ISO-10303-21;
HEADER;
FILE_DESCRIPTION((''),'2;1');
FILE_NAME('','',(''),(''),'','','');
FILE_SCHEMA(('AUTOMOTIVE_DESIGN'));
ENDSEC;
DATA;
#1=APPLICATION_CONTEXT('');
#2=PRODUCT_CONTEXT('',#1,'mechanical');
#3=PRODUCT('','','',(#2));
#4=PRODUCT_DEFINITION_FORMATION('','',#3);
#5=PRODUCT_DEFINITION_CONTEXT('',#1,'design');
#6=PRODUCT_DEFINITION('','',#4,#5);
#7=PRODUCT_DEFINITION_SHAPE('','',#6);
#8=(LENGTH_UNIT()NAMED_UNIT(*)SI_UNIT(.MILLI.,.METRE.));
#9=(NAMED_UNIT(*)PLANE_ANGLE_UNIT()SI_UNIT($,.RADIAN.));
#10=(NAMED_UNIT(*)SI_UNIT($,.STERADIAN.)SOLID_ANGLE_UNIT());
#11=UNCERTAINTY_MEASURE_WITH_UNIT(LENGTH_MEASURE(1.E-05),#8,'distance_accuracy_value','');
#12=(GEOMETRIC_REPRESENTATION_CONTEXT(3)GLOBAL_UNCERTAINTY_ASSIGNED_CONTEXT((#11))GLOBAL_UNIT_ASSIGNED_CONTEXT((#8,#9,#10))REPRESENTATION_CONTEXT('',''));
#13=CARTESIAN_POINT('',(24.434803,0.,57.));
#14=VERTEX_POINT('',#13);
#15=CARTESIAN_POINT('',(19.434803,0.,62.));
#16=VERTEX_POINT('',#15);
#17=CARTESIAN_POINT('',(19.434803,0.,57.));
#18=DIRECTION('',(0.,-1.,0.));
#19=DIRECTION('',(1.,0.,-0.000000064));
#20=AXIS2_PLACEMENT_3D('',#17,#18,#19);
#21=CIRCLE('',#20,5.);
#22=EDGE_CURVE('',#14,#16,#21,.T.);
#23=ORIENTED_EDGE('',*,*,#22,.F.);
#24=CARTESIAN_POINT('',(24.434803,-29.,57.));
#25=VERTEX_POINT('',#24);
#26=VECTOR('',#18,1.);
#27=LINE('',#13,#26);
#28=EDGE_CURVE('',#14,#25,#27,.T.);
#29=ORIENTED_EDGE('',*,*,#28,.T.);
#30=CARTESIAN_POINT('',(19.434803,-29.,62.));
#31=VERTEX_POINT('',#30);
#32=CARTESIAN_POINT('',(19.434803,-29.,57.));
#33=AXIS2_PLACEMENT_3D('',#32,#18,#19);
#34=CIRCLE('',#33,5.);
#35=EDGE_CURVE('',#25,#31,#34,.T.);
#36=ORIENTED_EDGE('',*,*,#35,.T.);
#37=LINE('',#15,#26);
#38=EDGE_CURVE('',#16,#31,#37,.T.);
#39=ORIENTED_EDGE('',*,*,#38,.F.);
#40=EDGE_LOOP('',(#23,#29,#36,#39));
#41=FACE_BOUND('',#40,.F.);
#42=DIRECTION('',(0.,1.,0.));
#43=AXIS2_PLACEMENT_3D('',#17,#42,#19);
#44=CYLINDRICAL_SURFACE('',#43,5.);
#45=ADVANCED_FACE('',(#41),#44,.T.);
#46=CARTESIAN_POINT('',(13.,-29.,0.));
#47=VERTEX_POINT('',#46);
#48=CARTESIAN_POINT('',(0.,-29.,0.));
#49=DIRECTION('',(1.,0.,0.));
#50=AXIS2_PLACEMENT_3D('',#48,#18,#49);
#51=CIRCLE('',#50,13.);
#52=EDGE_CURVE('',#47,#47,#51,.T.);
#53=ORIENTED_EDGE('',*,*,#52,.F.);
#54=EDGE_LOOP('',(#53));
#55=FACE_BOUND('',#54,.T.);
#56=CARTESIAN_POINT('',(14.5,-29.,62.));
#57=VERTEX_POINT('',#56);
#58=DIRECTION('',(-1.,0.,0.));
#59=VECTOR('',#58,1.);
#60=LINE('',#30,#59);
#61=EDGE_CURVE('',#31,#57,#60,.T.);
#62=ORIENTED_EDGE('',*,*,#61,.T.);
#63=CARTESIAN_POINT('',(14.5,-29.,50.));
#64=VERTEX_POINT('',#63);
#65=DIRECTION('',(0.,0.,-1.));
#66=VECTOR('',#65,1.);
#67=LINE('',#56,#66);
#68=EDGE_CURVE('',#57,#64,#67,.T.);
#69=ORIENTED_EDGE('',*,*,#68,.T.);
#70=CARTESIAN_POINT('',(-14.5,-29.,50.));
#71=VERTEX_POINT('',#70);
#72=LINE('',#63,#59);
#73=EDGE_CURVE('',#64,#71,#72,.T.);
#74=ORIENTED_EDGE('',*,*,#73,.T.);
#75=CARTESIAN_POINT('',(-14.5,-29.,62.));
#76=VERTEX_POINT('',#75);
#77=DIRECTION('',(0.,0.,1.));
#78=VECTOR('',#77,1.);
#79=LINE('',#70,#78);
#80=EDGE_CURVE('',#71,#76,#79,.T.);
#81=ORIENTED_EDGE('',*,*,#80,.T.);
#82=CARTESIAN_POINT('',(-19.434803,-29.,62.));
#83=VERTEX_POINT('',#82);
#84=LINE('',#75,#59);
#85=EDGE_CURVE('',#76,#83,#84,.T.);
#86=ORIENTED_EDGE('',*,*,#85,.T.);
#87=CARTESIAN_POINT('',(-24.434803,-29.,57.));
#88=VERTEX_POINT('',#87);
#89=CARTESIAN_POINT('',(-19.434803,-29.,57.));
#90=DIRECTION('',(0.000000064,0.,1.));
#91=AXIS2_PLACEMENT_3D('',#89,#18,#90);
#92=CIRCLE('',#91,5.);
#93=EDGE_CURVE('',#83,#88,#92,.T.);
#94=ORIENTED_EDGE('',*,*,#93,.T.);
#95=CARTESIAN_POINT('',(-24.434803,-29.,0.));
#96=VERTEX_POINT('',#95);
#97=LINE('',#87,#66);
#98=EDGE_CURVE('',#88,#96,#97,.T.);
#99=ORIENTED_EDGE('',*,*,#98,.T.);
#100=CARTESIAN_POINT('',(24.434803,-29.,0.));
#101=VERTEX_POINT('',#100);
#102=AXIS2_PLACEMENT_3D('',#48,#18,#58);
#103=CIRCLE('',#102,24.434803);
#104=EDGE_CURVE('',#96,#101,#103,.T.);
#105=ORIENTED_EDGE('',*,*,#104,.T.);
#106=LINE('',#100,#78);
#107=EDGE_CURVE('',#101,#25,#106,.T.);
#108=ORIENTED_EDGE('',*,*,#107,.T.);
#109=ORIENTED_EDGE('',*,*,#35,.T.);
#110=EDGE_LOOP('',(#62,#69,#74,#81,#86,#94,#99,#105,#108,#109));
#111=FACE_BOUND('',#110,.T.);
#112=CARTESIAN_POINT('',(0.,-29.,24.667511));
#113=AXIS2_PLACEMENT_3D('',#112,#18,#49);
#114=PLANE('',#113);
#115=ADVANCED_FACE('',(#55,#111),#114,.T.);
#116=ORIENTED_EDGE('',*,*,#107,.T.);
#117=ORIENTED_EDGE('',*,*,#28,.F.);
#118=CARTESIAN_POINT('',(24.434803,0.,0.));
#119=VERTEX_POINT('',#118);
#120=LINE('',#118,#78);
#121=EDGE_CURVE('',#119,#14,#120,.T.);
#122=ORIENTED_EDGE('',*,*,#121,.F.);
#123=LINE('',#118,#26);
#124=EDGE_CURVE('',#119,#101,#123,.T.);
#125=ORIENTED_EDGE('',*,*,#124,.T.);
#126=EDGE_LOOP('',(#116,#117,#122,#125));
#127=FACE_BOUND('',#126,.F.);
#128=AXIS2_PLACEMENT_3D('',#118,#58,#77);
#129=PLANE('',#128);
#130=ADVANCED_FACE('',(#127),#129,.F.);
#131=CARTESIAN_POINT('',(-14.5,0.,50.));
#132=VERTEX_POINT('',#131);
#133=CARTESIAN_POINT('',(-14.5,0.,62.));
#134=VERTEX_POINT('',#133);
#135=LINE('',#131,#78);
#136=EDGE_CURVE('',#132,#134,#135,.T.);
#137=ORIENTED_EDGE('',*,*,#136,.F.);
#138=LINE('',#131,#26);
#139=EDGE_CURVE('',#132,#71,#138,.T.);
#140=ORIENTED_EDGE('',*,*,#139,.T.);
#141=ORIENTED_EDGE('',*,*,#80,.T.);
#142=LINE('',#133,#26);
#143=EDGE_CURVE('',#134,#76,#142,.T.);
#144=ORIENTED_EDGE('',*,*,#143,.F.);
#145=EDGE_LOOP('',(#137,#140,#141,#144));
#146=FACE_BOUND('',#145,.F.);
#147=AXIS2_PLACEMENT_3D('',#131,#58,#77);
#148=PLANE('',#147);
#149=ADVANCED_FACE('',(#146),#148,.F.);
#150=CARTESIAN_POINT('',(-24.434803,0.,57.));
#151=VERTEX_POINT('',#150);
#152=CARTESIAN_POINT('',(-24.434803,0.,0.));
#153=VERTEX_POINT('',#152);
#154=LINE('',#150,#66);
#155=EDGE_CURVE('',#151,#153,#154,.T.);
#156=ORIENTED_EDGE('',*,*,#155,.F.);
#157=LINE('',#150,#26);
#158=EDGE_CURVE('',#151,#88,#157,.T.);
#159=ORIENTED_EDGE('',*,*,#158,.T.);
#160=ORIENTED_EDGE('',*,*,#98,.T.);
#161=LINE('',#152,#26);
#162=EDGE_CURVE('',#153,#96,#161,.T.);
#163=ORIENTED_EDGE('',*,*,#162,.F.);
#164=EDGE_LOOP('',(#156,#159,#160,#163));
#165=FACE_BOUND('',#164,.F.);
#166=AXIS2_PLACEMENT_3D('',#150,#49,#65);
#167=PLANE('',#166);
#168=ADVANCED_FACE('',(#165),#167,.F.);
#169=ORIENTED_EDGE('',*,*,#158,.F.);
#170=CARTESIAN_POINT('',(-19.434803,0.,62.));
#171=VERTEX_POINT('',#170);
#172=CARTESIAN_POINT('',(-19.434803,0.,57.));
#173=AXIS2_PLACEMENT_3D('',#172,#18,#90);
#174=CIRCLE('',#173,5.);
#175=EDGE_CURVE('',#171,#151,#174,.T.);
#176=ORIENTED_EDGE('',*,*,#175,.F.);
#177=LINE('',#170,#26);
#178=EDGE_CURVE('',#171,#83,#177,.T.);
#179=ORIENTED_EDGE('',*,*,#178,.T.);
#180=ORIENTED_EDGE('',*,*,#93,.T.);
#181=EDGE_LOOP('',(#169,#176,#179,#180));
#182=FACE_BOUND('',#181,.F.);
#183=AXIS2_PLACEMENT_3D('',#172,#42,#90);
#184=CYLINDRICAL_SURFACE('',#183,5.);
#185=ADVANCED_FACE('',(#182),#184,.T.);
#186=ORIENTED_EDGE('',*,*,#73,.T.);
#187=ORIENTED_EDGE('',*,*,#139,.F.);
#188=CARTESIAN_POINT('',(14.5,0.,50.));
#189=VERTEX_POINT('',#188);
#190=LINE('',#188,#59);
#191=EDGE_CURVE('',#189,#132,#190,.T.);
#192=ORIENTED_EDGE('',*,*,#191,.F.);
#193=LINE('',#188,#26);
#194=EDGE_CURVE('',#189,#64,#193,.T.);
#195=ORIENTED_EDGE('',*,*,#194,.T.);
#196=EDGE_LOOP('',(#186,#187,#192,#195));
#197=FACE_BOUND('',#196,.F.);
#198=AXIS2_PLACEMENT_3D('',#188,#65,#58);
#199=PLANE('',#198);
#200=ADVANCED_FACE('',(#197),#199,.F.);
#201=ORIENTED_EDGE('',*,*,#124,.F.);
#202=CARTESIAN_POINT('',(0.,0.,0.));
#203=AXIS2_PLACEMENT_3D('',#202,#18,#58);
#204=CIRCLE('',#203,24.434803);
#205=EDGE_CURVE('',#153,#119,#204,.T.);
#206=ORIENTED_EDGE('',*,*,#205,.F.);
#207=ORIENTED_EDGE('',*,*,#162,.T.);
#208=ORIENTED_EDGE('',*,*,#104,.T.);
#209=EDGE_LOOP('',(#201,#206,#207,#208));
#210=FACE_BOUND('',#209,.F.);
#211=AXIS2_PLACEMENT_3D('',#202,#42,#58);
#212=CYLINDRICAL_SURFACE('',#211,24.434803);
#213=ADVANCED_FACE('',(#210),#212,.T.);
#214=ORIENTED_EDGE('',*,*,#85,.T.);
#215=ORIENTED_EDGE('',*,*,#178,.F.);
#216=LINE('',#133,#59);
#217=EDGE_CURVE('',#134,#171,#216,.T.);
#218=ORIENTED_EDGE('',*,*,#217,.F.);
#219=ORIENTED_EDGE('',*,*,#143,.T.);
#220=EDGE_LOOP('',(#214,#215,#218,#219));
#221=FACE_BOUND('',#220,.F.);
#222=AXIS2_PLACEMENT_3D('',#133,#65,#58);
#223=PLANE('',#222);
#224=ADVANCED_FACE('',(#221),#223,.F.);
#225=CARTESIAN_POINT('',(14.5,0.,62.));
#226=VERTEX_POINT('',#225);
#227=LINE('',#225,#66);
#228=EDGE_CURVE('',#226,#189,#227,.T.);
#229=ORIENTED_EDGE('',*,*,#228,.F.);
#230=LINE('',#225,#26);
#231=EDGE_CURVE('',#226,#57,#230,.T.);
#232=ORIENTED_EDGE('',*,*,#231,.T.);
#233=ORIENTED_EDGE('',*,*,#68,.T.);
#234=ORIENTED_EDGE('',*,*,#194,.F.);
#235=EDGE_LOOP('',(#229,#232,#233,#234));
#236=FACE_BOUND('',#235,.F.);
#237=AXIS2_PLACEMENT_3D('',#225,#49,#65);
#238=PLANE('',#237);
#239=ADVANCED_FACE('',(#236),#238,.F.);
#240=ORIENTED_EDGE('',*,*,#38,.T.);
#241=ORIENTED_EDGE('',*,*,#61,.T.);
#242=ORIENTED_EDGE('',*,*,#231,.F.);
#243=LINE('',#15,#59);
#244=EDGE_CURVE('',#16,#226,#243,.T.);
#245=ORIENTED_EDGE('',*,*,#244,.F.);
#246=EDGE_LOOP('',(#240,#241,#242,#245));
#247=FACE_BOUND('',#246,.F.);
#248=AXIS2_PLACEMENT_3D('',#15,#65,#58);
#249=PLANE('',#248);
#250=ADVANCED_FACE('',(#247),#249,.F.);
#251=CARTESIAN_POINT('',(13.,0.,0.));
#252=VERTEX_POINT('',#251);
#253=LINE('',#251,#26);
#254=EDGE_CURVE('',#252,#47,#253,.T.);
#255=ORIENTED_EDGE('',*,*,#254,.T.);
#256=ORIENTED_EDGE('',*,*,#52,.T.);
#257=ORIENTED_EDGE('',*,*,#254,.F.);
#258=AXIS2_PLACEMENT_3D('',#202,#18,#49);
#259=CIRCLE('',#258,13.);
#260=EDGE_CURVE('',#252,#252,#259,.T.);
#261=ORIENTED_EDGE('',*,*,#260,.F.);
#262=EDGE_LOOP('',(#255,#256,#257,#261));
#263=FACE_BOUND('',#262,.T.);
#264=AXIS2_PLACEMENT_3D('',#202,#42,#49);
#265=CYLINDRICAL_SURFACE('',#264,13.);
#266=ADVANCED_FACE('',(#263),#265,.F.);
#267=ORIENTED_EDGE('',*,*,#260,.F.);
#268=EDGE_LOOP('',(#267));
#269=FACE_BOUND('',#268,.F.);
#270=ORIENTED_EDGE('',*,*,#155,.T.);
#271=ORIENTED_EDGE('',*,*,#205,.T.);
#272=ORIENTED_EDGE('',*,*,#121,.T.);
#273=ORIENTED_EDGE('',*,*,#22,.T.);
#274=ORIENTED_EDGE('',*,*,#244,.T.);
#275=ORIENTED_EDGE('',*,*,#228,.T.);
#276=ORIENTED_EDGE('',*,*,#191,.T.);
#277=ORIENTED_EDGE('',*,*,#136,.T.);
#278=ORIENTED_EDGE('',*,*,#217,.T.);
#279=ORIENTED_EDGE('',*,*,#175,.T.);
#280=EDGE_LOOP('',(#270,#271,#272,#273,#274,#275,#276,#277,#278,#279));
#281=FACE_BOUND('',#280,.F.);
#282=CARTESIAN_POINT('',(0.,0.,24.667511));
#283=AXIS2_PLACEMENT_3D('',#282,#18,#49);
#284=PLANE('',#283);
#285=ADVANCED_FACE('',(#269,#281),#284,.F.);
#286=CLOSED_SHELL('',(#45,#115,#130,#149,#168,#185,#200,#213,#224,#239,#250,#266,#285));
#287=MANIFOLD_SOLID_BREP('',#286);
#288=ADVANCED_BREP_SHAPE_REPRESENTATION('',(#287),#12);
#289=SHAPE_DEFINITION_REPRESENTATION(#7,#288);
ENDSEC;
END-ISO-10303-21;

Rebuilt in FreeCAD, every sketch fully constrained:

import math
import FreeCAD as App
import Part
import Sketcher

doc = App.newDocument("Part")
body = doc.addObject("PartDesign::Body", "Body")

sketch1 = body.newObject("Sketcher::SketchObject", "Sketch")
sketch1.AttachmentSupport = (doc.getObject("XZ_Plane"), [""])
sketch1.MapMode = "FlatFace"
sketch1.addGeometry([
    Part.LineSegment(App.Vector(-14.5, 62, 0), App.Vector(-19.4, 62, 0)),
    Part.ArcOfCircle(Part.Circle(App.Vector(-19.4, 57, 0), App.Vector(0, 0, 1), 5), math.radians(90), math.radians(180)),
    Part.LineSegment(App.Vector(-24.4, 57, 0), App.Vector(-24.4, 0, 0)),
    Part.ArcOfCircle(Part.Circle(App.Vector(0, 0, 0), App.Vector(0, 0, 1), 24.4), math.radians(180), math.radians(360)),
    Part.LineSegment(App.Vector(24.4, 0, 0), App.Vector(24.4, 57, 0)),
    Part.ArcOfCircle(Part.Circle(App.Vector(19.4, 57, 0), App.Vector(0, 0, 1), 5), math.radians(0), math.radians(90)),
    Part.LineSegment(App.Vector(19.4, 62, 0), App.Vector(14.5, 62, 0)),
    Part.LineSegment(App.Vector(14.5, 62, 0), App.Vector(14.5, 50, 0)),
    Part.LineSegment(App.Vector(14.5, 50, 0), App.Vector(-14.5, 50, 0)),
    Part.LineSegment(App.Vector(-14.5, 50, 0), App.Vector(-14.5, 62, 0)),
    Part.Circle(App.Vector(0, 0, 0), App.Vector(0, 0, 1), 13),
], False)
sketch1.addConstraint([
    Sketcher.Constraint("Tangent", 0, 2, 1, 1),
    Sketcher.Constraint("Tangent", 1, 2, 2, 1),
    Sketcher.Constraint("Tangent", 2, 2, 3, 1),
    Sketcher.Constraint("Tangent", 3, 2, 4, 1),
    Sketcher.Constraint("Tangent", 4, 2, 5, 1),
    Sketcher.Constraint("Tangent", 5, 2, 6, 1),
    Sketcher.Constraint("Coincident", 6, 2, 7, 1),
    Sketcher.Constraint("Coincident", 7, 2, 8, 1),
    Sketcher.Constraint("Coincident", 8, 2, 9, 1),
    Sketcher.Constraint("Coincident", 9, 2, 0, 1),
    Sketcher.Constraint("Horizontal", 0),
    Sketcher.Constraint("Vertical", 2),
    Sketcher.Constraint("Vertical", 4),
    Sketcher.Constraint("Horizontal", 6),
    Sketcher.Constraint("Vertical", 7),
    Sketcher.Constraint("Horizontal", 8),
    Sketcher.Constraint("Vertical", 9),
    Sketcher.Constraint("Coincident", 3, 3, -1, 1),
    Sketcher.Constraint("Coincident", 10, 3, -1, 1),
    Sketcher.Constraint("Equal", 1, 5),
    Sketcher.Constraint("Symmetric", 6, 2, 9, 2, -2),
    Sketcher.Constraint("Diameter", 10, 26.0),
    Sketcher.Constraint("Radius", 1, 5.0),
    Sketcher.Constraint("DistanceX", 8, 2, 8, 1, 29.0),
    Sketcher.Constraint("DistanceY", 2, 2, 2, 1, 57.0),
    Sketcher.Constraint("DistanceY", 7, 2, 7, 1, 12.0),
    Sketcher.Constraint("Radius", 3, 24.434803),
])
pad1 = body.newObject("PartDesign::Pad", "Pad")
pad1.Profile = sketch1
pad1.Length = 29

doc.recompute()
